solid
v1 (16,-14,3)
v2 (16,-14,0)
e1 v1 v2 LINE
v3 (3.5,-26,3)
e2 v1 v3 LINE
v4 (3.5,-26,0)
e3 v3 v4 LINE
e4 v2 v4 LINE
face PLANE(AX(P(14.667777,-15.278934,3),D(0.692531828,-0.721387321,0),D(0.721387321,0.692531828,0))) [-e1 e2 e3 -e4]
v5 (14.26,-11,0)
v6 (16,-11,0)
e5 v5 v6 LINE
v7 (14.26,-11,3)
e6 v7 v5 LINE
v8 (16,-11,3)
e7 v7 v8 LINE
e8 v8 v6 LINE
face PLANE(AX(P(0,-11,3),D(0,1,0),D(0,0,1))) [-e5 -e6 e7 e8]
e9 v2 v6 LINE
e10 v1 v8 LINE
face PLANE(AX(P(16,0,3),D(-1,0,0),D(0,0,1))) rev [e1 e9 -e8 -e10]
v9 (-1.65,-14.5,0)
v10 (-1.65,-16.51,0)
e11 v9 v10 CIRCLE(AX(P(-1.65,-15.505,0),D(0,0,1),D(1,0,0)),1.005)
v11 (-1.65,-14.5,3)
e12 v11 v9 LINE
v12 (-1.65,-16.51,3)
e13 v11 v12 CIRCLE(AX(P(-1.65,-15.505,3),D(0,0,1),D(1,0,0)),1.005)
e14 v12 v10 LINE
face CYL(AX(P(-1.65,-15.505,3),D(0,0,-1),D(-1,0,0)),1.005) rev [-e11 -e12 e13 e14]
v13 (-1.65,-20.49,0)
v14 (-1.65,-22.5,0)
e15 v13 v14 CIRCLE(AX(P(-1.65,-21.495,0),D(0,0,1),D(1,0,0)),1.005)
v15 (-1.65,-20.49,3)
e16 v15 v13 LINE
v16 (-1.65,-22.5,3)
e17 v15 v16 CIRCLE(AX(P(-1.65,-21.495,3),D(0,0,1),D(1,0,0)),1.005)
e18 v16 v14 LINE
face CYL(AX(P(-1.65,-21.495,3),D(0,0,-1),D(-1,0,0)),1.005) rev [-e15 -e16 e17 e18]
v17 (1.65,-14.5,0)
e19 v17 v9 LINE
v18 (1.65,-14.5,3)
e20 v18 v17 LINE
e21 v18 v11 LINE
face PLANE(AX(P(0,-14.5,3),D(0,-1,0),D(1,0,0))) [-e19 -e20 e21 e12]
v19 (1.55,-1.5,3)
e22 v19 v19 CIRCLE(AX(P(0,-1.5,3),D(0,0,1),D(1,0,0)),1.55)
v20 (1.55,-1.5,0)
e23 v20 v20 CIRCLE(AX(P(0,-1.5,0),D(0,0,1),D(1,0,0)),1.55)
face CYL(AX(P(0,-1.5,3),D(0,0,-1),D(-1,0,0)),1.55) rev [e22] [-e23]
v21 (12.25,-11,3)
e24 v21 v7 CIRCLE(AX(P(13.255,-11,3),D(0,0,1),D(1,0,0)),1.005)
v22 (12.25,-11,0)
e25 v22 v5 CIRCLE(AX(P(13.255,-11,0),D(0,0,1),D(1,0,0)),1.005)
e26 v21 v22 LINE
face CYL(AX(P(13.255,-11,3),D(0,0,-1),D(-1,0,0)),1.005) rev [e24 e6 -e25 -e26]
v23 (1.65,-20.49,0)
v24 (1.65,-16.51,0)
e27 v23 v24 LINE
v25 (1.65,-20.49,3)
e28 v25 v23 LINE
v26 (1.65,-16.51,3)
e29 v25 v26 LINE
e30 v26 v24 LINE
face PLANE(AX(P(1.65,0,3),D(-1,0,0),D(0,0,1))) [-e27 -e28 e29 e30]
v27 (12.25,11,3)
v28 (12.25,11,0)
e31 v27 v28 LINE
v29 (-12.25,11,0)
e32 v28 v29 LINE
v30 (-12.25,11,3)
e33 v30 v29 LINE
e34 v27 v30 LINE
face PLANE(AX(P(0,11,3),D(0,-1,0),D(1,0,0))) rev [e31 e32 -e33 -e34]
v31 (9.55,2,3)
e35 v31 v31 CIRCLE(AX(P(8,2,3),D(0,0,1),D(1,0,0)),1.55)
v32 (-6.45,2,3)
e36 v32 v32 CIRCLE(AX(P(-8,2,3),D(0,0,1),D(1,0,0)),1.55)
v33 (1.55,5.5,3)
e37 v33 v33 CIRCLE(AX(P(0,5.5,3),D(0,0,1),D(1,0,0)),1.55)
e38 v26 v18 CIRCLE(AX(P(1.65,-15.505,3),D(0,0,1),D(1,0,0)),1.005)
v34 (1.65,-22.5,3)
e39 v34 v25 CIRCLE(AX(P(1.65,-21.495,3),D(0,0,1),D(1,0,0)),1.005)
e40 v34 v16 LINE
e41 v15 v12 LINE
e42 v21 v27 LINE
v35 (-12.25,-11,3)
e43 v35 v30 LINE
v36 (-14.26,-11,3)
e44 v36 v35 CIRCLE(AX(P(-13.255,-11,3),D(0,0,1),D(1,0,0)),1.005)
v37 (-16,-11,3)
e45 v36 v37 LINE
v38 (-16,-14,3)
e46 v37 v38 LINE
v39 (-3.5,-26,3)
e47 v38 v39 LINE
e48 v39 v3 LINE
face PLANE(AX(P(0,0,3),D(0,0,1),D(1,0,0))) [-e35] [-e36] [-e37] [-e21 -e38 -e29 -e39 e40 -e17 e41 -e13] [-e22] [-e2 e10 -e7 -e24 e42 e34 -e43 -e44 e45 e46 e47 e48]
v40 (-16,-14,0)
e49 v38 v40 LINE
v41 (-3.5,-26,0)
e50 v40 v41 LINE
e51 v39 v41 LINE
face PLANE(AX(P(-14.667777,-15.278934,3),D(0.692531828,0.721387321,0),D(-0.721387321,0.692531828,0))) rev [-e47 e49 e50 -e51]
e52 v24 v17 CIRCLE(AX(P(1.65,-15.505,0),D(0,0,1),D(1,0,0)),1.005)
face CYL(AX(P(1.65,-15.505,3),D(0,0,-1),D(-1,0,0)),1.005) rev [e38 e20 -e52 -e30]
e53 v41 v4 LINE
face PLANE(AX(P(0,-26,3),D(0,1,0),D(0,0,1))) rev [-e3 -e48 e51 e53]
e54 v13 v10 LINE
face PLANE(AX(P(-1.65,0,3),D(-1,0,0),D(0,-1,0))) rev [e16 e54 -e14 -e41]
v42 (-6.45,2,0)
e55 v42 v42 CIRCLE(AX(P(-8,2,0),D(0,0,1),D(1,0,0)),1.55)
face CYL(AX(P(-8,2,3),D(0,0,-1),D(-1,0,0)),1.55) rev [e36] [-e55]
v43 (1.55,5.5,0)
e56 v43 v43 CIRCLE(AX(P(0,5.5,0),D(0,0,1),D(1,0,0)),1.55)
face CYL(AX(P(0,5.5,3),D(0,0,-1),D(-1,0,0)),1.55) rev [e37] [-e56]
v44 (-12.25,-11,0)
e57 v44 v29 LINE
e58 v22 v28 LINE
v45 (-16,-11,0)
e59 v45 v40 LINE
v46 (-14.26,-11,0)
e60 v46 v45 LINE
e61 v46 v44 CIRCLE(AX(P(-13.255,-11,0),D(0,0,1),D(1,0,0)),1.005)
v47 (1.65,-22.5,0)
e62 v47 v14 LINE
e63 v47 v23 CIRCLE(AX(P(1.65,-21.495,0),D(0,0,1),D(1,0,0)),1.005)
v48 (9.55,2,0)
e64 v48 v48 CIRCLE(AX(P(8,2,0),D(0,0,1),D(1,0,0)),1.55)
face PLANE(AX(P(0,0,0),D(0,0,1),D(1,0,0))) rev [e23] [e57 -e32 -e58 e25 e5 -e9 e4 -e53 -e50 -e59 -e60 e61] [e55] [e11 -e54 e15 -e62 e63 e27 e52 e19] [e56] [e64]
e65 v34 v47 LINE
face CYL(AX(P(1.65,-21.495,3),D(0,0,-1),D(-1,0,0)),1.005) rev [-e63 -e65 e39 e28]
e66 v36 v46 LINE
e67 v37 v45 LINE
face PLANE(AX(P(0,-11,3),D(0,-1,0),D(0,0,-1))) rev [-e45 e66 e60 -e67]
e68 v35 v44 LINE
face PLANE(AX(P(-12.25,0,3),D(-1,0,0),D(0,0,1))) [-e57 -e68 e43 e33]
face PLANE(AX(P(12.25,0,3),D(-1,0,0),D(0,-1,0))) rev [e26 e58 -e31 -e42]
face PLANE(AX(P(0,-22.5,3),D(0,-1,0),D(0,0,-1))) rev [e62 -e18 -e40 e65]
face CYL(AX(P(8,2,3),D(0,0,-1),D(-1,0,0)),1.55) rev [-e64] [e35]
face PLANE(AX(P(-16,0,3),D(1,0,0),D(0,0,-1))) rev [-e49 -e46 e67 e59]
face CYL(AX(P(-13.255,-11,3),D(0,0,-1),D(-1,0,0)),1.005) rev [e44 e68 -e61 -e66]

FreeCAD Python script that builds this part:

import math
import FreeCAD as App
import Part
import Sketcher
Q = App.Units.Quantity

doc = App.newDocument("Part")
body = doc.addObject("PartDesign::Body", "Body")

# Sketch on XY plane
sketch1 = doc.addObject("Sketcher::SketchObject", "Sketch")
body.addObject(sketch1)
sketch1.AttachmentSupport = (doc.XY_Plane, [""])
sketch1.MapMode = "FlatFace"
sketch1.addGeometry(Part.LineSegment(App.Vector(-12.2, 11, 0), App.Vector(-12.2, -11, 0)), False)
sketch1.addGeometry(Part.ArcOfCircle(Part.Circle(App.Vector(-13.3, -11, 0), App.Vector(0, 0, 1), 1), math.radians(180), math.radians(360)), False)
sketch1.addGeometry(Part.LineSegment(App.Vector(-14.3, -11, 0), App.Vector(-16, -11, 0)), False)
sketch1.addGeometry(Part.LineSegment(App.Vector(-16, -11, 0), App.Vector(-16, -14, 0)), False)
sketch1.addGeometry(Part.LineSegment(App.Vector(-16, -14, 0), App.Vector(-3.5, -26, 0)), False)
sketch1.addGeometry(Part.LineSegment(App.Vector(-3.5, -26, 0), App.Vector(3.5, -26, 0)), False)
sketch1.addGeometry(Part.LineSegment(App.Vector(3.5, -26, 0), App.Vector(16, -14, 0)), False)
sketch1.addGeometry(Part.LineSegment(App.Vector(16, -14, 0), App.Vector(16, -11, 0)), False)
sketch1.addGeometry(Part.LineSegment(App.Vector(16, -11, 0), App.Vector(14.3, -11, 0)), False)
sketch1.addGeometry(Part.ArcOfCircle(Part.Circle(App.Vector(13.3, -11, 0), App.Vector(0, 0, 1), 1), math.radians(180), math.radians(360)), False)
sketch1.addGeometry(Part.LineSegment(App.Vector(12.2, -11, 0), App.Vector(12.2, 11, 0)), False)
sketch1.addGeometry(Part.LineSegment(App.Vector(12.2, 11, 0), App.Vector(-12.2, 11, 0)), False)
sketch1.addGeometry(Part.ArcOfCircle(Part.Circle(App.Vector(1.6, -21.5, 0), App.Vector(0, 0, 1), 1), math.radians(0), math.radians(90)), False)
sketch1.addGeometry(Part.ArcOfCircle(Part.Circle(App.Vector(1.6, -21.5, 0), App.Vector(0, 0, 1), 1), math.radians(-90), math.radians(0)), False)
sketch1.addGeometry(Part.LineSegment(App.Vector(1.6, -22.5, 0), App.Vector(-1.6, -22.5, 0)), False)
sketch1.addGeometry(Part.ArcOfCircle(Part.Circle(App.Vector(-1.6, -21.5, 0), App.Vector(0, 0, 1), 1), math.radians(90), math.radians(270)), False)
sketch1.addGeometry(Part.LineSegment(App.Vector(-1.6, -20.5, 0), App.Vector(-1.6, -16.5, 0)), False)
sketch1.addGeometry(Part.ArcOfCircle(Part.Circle(App.Vector(-1.6, -15.5, 0), App.Vector(0, 0, 1), 1), math.radians(90), math.radians(270)), False)
sketch1.addGeometry(Part.LineSegment(App.Vector(-1.6, -14.5, 0), App.Vector(1.6, -14.5, 0)), False)
sketch1.addGeometry(Part.ArcOfCircle(Part.Circle(App.Vector(1.6, -15.5, 0), App.Vector(0, 0, 1), 1), math.radians(0), math.radians(90)), False)
sketch1.addGeometry(Part.ArcOfCircle(Part.Circle(App.Vector(1.6, -15.5, 0), App.Vector(0, 0, 1), 1), math.radians(-90), math.radians(0)), False)
sketch1.addGeometry(Part.LineSegment(App.Vector(1.6, -16.5, 0), App.Vector(1.6, -20.5, 0)), False)
sketch1.addGeometry(Part.Circle(App.Vector(0, -1.5, 0), App.Vector(0, 0, 1), 1.6), False)
sketch1.addGeometry(Part.Circle(App.Vector(-8, 2, 0), App.Vector(0, 0, 1), 1.6), False)
sketch1.addGeometry(Part.Circle(App.Vector(0, 5.5, 0), App.Vector(0, 0, 1), 1.6), False)
sketch1.addGeometry(Part.Circle(App.Vector(8, 2, 0), App.Vector(0, 0, 1), 1.6), False)
sketch1.addConstraint(Sketcher.Constraint("Tangent", 0, 2, 1, 2))
sketch1.addConstraint(Sketcher.Constraint("Coincident", 1, 1, 2, 1))
sketch1.addConstraint(Sketcher.Constraint("Coincident", 2, 2, 3, 1))
sketch1.addConstraint(Sketcher.Constraint("Coincident", 3, 2, 4, 1))
sketch1.addConstraint(Sketcher.Constraint("Coincident", 4, 2, 5, 1))
sketch1.addConstraint(Sketcher.Constraint("Coincident", 5, 2, 6, 1))
sketch1.addConstraint(Sketcher.Constraint("Coincident", 6, 2, 7, 1))
sketch1.addConstraint(Sketcher.Constraint("Coincident", 7, 2, 8, 1))
sketch1.addConstraint(Sketcher.Constraint("Coincident", 8, 2, 9, 2))
sketch1.addConstraint(Sketcher.Constraint("Tangent", 9, 1, 10, 1))
sketch1.addConstraint(Sketcher.Constraint("Coincident", 10, 2, 11, 1))
sketch1.addConstraint(Sketcher.Constraint("Coincident", 11, 2, 0, 1))
sketch1.addConstraint(Sketcher.Constraint("Tangent", 12, 1, 13, 2))
sketch1.addConstraint(Sketcher.Constraint("Tangent", 13, 1, 14, 1))
sketch1.addConstraint(Sketcher.Constraint("Tangent", 14, 2, 15, 2))
sketch1.addConstraint(Sketcher.Constraint("Coincident", 15, 1, 16, 1))
sketch1.addConstraint(Sketcher.Constraint("Coincident", 16, 2, 17, 2))
sketch1.addConstraint(Sketcher.Constraint("Tangent", 17, 1, 18, 1))
sketch1.addConstraint(Sketcher.Constraint("Tangent", 18, 2, 19, 2))
sketch1.addConstraint(Sketcher.Constraint("Tangent", 19, 1, 20, 2))
sketch1.addConstraint(Sketcher.Constraint("Coincident", 20, 1, 21, 1))
sketch1.addConstraint(Sketcher.Constraint("Coincident", 21, 2, 12, 2))
sketch1.addConstraint(Sketcher.Constraint("Vertical", 0))
sketch1.addConstraint(Sketcher.Constraint("Horizontal", 2))
sketch1.addConstraint(Sketcher.Constraint("Vertical", 3))
sketch1.addConstraint(Sketcher.Constraint("Horizontal", 5))
sketch1.addConstraint(Sketcher.Constraint("Vertical", 7))
sketch1.addConstraint(Sketcher.Constraint("Horizontal", 8))
sketch1.addConstraint(Sketcher.Constraint("Vertical", 10))
sketch1.addConstraint(Sketcher.Constraint("Horizontal", 11))
sketch1.addConstraint(Sketcher.Constraint("Horizontal", 14))
sketch1.addConstraint(Sketcher.Constraint("Vertical", 16))
sketch1.addConstraint(Sketcher.Constraint("Horizontal", 18))
sketch1.addConstraint(Sketcher.Constraint("Vertical", 21))
sketch1.addConstraint(Sketcher.Constraint("Equal", 1, 9))
sketch1.addConstraint(Sketcher.Constraint("Equal", 9, 12))
sketch1.addConstraint(Sketcher.Constraint("Equal", 12, 13))
sketch1.addConstraint(Sketcher.Constraint("Equal", 13, 15))
sketch1.addConstraint(Sketcher.Constraint("Equal", 15, 17))
sketch1.addConstraint(Sketcher.Constraint("Equal", 17, 19))
sketch1.addConstraint(Sketcher.Constraint("Equal", 19, 20))
sketch1.addConstraint(Sketcher.Constraint("Equal", 22, 23))
sketch1.addConstraint(Sketcher.Constraint("Equal", 23, 24))
sketch1.addConstraint(Sketcher.Constraint("Equal", 24, 25))
sketch1.addConstraint(Sketcher.Constraint("Symmetric", 0, 2, 10, 2, -1, 1))
sketch1.addConstraint(Sketcher.Constraint("Symmetric", 23, 3, 25, 3, -2))
sketch1.addConstraint(Sketcher.Constraint("Symmetric", 3, 2, 6, 2, -2))
sketch1.addConstraint(Sketcher.Constraint("PointOnObject", 22, 3, -2))
sketch1.addConstraint(Sketcher.Constraint("PointOnObject", 24, 3, -2))
sketch1.addConstraint(Sketcher.Constraint("Horizontal", 1, 3, 9, 3))
sketch1.addConstraint(Sketcher.Constraint("Horizontal", 0, 2, 1, 1))
sketch1.addConstraint(Sketcher.Constraint("Horizontal", 2, 2, 7, 2))
sketch1.addConstraint(Sketcher.Constraint("Horizontal", 15, 3, 12, 1))
sketch1.addConstraint(Sketcher.Constraint("Horizontal", 20, 3, 19, 1))
sketch1.addConstraint(Sketcher.Constraint("Vertical", 15, 3, 17, 3))
sketch1.addConstraint(Sketcher.Constraint("Vertical", 13, 3, 19, 3))
sketch1.addConstraint(Sketcher.Constraint("Vertical", 14, 2, 15, 1))
sketch1.addConstraint(Sketcher.Constraint("Vertical", 18, 2, 20, 1))
sketch1.addConstraint(Sketcher.Constraint("Equal", 4, 6))
sketch1.addConstraint(Sketcher.Constraint("Diameter", 22, Q("3.1 mm")))
sketch1.addConstraint(Sketcher.Constraint("DistanceX", 5, 1, 5, 2, Q("7 mm")))
sketch1.addConstraint(Sketcher.Constraint("DistanceY", 0, 2, 0, 1, Q("22 mm")))
sketch1.addConstraint(Sketcher.Constraint("DistanceY", 3, 2, 3, 1, Q("3 mm")))
sketch1.addConstraint(Sketcher.Constraint("DistanceX", 11, 2, 11, 1, Q("24.5 mm")))
sketch1.addConstraint(Sketcher.Constraint("DistanceX", 14, 2, 14, 1, Q("3.3 mm")))
sketch1.addConstraint(Sketcher.Constraint("DistanceX", 23, 3, -1, 1, Q("8 mm")))
sketch1.addConstraint(Sketcher.Constraint("DistanceY", -1, 1, 23, 3, Q("2 mm")))
sketch1.addConstraint(Sketcher.Constraint("DistanceX", 2, 2, -1, 1, Q("16 mm")))
sketch1.addConstraint(Sketcher.Constraint("DistanceY", 4, 2, -1, 1, Q("26 mm")))
sketch1.addConstraint(Sketcher.Constraint("Radius", 1, Q("1.005 mm")))
sketch1.addConstraint(Sketcher.Constraint("DistanceY", 22, 3, 24, 3, Q("7 mm")))
sketch1.addConstraint(Sketcher.Constraint("DistanceY", 16, 1, 16, 2, Q("3.98 mm")))
sketch1.addConstraint(Sketcher.Constraint("DistanceY", 22, 3, -1, 1, Q("1.5 mm")))
sketch1.addConstraint(Sketcher.Constraint("DistanceY", 13, 1, -1, 1, Q("22.5 mm")))
sketch1.addConstraint(Sketcher.Constraint("DistanceX", 0, 2, 17, 3, Q("10.6 mm")))
pad1 = doc.addObject("PartDesign::Pad", "Pad")
body.addObject(pad1)
pad1.Profile = sketch1
pad1.Length = 3

doc.recompute()
